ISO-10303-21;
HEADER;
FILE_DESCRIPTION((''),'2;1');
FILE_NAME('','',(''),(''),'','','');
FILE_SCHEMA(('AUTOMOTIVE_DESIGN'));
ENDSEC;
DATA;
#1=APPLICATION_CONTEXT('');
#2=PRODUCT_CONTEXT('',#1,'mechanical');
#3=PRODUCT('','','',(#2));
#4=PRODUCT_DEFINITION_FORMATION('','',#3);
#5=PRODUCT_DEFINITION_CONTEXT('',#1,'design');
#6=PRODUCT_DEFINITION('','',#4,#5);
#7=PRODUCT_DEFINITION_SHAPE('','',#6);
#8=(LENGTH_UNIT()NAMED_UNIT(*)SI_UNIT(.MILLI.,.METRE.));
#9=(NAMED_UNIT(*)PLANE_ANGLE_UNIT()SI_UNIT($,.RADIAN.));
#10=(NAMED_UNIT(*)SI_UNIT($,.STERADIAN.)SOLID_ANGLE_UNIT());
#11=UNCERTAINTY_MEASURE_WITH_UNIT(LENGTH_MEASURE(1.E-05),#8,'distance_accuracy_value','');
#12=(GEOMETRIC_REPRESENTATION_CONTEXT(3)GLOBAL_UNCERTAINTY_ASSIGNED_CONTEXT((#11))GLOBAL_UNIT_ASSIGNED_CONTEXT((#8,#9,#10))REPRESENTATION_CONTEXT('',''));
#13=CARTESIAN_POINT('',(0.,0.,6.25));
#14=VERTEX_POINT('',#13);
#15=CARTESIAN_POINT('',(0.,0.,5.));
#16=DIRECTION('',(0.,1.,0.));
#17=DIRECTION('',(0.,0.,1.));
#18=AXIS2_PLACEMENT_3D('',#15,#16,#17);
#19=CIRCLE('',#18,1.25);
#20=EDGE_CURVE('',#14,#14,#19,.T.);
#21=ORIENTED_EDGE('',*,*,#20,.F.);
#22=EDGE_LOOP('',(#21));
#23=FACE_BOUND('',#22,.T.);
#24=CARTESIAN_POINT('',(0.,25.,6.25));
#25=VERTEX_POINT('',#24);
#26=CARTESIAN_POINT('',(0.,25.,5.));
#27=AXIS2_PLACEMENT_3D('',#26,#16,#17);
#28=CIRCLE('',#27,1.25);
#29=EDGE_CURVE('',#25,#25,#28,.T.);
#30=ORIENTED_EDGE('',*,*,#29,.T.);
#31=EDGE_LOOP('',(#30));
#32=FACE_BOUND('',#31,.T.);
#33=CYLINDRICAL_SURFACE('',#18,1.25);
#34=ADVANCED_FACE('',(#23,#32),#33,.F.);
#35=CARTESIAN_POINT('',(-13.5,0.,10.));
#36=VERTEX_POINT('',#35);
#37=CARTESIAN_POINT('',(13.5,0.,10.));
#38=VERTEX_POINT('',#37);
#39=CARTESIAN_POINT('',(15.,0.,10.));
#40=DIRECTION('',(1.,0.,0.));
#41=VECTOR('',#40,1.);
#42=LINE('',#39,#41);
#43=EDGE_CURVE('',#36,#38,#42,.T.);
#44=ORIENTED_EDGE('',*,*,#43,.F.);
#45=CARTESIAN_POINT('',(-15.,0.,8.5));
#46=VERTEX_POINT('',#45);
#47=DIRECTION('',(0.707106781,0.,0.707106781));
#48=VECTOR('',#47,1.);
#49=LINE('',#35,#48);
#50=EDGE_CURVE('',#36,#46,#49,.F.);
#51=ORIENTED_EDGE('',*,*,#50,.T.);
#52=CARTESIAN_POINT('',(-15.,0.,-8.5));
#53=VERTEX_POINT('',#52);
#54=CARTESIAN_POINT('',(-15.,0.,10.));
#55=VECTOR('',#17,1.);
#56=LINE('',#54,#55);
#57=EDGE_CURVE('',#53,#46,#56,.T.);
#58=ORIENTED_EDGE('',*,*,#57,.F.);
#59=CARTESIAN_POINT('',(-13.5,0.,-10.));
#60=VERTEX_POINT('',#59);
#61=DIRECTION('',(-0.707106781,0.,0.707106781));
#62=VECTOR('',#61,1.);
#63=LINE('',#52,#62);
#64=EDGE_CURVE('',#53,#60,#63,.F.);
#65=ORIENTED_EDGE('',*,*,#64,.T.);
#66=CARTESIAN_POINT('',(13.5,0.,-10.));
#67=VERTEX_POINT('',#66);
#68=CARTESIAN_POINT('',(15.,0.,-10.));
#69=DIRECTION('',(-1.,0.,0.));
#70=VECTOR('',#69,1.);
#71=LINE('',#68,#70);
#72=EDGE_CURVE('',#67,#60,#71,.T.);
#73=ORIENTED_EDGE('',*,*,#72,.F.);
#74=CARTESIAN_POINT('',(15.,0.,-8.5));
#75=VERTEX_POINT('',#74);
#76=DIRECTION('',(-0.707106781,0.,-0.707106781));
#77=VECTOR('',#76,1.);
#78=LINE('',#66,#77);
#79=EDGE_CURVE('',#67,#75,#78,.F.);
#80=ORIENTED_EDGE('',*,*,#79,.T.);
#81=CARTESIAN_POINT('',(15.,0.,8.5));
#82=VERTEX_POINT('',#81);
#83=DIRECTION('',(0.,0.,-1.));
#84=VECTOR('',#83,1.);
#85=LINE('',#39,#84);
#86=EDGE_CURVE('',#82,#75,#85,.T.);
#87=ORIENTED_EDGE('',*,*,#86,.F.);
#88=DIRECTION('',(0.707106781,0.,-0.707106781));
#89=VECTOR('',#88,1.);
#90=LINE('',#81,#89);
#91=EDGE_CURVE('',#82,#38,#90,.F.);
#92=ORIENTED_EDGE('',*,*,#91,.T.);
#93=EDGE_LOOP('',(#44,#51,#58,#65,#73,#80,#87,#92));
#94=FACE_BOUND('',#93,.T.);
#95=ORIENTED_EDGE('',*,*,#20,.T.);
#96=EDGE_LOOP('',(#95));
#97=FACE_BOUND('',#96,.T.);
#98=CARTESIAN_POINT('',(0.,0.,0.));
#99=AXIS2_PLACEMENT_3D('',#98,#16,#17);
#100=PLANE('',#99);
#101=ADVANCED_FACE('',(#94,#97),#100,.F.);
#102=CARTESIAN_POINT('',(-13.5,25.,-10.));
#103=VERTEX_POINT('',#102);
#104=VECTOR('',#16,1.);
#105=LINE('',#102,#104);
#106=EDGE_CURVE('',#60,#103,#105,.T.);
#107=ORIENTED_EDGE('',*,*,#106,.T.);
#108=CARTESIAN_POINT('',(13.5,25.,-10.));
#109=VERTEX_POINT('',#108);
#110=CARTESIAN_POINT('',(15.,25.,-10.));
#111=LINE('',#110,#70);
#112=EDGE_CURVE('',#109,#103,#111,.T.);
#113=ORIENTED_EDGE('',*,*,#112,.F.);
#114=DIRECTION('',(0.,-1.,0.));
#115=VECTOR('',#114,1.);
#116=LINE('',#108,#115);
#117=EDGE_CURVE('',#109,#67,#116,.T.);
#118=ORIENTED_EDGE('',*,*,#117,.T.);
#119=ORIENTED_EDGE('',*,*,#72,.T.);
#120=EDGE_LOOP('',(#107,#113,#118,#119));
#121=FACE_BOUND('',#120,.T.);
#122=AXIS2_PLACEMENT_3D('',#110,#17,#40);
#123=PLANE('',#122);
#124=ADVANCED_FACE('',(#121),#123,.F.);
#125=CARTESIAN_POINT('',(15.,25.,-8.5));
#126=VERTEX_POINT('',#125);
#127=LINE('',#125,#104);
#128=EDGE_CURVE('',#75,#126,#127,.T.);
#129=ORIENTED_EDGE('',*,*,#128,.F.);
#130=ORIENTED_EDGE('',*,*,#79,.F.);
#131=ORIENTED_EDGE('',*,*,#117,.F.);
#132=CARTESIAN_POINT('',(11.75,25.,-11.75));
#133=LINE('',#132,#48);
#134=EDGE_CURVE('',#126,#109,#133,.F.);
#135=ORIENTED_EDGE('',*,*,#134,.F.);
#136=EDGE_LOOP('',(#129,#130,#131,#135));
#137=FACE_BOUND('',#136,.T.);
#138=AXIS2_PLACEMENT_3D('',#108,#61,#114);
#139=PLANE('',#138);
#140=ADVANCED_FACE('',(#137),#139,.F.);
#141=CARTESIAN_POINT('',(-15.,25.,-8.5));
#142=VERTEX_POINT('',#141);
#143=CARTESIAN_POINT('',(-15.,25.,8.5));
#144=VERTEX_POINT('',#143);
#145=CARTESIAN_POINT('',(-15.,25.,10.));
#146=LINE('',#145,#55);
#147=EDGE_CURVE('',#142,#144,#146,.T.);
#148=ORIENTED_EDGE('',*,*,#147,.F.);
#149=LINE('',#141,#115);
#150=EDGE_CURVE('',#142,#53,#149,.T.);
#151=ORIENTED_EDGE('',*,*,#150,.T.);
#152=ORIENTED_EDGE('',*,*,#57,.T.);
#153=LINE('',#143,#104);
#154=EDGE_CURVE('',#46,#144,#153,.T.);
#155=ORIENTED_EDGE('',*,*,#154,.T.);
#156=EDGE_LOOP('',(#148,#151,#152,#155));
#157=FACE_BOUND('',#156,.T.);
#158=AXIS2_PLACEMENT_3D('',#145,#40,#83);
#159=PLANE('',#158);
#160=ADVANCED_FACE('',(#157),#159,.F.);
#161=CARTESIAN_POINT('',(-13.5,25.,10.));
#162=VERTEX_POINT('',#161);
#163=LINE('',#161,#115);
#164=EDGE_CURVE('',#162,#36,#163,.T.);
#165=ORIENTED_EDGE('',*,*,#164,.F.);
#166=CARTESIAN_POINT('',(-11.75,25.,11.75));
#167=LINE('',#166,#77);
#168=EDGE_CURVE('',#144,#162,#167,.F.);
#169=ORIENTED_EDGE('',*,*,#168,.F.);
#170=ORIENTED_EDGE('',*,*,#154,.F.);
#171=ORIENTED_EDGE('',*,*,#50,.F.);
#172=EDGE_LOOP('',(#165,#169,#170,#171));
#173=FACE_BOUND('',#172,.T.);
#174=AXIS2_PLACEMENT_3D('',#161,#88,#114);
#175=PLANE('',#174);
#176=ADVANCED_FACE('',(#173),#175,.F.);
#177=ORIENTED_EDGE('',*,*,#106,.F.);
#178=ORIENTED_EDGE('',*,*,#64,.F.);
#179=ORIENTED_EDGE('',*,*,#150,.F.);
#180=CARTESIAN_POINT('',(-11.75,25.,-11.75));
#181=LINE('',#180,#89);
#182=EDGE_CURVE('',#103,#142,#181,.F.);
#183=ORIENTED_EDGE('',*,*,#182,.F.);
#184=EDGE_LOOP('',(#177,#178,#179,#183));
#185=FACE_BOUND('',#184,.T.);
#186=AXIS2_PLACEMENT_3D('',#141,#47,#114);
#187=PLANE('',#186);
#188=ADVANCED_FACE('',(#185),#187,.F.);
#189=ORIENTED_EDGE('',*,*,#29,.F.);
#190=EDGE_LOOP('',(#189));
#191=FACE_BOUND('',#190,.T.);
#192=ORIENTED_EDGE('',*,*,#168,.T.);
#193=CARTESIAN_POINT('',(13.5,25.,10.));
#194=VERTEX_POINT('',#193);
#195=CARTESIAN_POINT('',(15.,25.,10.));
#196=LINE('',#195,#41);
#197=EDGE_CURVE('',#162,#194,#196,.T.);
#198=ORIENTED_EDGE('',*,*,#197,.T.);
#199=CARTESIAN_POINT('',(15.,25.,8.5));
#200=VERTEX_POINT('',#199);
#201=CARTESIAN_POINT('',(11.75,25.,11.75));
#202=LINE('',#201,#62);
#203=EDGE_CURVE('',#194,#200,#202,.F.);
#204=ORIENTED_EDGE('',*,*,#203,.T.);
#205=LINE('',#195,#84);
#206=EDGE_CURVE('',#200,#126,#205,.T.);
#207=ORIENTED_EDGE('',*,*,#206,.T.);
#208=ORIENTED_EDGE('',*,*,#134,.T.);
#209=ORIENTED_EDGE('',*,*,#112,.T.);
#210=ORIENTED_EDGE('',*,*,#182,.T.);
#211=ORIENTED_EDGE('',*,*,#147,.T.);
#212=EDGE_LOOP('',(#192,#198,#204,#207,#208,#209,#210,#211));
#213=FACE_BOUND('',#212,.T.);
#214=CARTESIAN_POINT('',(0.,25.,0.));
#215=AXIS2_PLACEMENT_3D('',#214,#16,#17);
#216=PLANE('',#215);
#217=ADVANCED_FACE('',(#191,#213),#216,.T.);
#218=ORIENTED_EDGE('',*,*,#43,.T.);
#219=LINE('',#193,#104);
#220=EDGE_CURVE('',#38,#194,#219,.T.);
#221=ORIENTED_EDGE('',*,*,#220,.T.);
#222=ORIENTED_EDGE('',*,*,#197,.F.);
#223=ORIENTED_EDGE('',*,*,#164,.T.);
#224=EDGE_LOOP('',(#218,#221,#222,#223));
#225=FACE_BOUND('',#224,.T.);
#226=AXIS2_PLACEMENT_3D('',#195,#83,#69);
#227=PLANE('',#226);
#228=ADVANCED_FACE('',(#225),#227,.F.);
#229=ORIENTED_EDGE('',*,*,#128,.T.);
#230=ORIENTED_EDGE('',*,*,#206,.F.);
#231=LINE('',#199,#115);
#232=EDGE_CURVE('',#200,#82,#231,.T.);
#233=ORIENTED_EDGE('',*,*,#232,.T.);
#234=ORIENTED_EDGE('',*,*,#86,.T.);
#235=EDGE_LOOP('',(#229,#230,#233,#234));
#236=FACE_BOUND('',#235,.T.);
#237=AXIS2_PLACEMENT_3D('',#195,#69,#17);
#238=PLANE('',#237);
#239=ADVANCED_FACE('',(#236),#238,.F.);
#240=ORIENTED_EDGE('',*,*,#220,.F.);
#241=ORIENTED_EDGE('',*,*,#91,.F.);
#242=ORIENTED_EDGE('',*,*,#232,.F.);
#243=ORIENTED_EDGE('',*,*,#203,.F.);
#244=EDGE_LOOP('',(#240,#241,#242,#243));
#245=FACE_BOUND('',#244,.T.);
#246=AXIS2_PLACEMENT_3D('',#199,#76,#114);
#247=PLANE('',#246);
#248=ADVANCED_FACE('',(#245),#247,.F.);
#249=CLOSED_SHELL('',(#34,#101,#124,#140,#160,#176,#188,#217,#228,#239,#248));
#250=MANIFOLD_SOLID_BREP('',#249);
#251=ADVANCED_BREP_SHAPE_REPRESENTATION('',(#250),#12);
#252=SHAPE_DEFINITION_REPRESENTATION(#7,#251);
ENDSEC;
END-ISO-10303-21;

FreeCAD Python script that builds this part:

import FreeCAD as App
import Part
import Sketcher

V = App.Vector
Q = App.Units.Quantity


def edges_at(feature, points):
    """Names of the edges that pass closest to the given points."""
    edges = feature.Shape.Edges
    near = lambda p: min(range(len(edges)), key=lambda i: edges[i].distToShape(Part.Vertex(*p))[0])
    return sorted({f"Edge{near(p) + 1}" for p in points})

doc = App.newDocument("Part")
body = doc.addObject("PartDesign::Body", "Body")

# Sketch on XZ plane
sketch1 = body.newObject("Sketcher::SketchObject", "Sketch")
sketch1.AttachmentSupport = (doc.getObject("XZ_Plane"), [""])
sketch1.MapMode = "FlatFace"
sketch1.addGeometry([
    Part.LineSegment(V(-15, -10, 0), V(-15, 10, 0)),
    Part.LineSegment(V(-15, 10, 0), V(15, 10, 0)),
    Part.LineSegment(V(15, 10, 0), V(15, -10, 0)),
    Part.LineSegment(V(15, -10, 0), V(-15, -10, 0)),
], False)
sketch1.addConstraint([
    Sketcher.Constraint("Coincident", 0, 2, 1, 1),
    Sketcher.Constraint("Coincident", 1, 2, 2, 1),
    Sketcher.Constraint("Coincident", 2, 2, 3, 1),
    Sketcher.Constraint("Coincident", 3, 2, 0, 1),
    Sketcher.Constraint("Vertical", 0),
    Sketcher.Constraint("Horizontal", 1),
    Sketcher.Constraint("Vertical", 2),
    Sketcher.Constraint("Horizontal", 3),
    Sketcher.Constraint("Symmetric", 0, 2, 2, 2, -1, 1),
    Sketcher.Constraint("DistanceX", 1, 1, 1, 2, Q("30 mm")),
    Sketcher.Constraint("DistanceY", 0, 1, 0, 2, Q("20 mm")),
])
pad1 = body.newObject("PartDesign::Pad", "Pad")
pad1.Profile = sketch1
pad1.Length = 25
pad1.Reversed = True

# Sketch on XZ plane
sketch2 = body.newObject("Sketcher::SketchObject", "Sketch001")
sketch2.AttachmentSupport = (doc.getObject("XZ_Plane"), [""])
sketch2.MapMode = "FlatFace"
sketch2.AttachmentOffset = App.Placement(V(0, 0, -25), App.Rotation())
sketch2.addGeometry(Part.Circle(V(0, 5, 0), V(0, 0, 1), 1.2), False)
sketch2.addConstraint([
    Sketcher.Constraint("PointOnObject", 0, 3, -2),
    Sketcher.Constraint("Diameter", 0, Q("2.5 mm")),
    Sketcher.Constraint("DistanceY", -1, 1, 0, 3, Q("5 mm")),
])
pocket1 = body.newObject("PartDesign::Pocket", "Pocket")
pocket1.Profile = sketch2
pocket1.Type = "ThroughAll"
pocket1.Reversed = True
doc.recompute()

chamfer = body.newObject("PartDesign::Chamfer", "Chamfer")
chamfer.Base = (pocket1, edges_at(pocket1, [
    (-15, 12.5, -10),
    (15, 12.5, -10),
    (15, 12.5, 10),
    (-15, 12.5, 10),
]))
chamfer.Size = 1.5

doc.recompute()
